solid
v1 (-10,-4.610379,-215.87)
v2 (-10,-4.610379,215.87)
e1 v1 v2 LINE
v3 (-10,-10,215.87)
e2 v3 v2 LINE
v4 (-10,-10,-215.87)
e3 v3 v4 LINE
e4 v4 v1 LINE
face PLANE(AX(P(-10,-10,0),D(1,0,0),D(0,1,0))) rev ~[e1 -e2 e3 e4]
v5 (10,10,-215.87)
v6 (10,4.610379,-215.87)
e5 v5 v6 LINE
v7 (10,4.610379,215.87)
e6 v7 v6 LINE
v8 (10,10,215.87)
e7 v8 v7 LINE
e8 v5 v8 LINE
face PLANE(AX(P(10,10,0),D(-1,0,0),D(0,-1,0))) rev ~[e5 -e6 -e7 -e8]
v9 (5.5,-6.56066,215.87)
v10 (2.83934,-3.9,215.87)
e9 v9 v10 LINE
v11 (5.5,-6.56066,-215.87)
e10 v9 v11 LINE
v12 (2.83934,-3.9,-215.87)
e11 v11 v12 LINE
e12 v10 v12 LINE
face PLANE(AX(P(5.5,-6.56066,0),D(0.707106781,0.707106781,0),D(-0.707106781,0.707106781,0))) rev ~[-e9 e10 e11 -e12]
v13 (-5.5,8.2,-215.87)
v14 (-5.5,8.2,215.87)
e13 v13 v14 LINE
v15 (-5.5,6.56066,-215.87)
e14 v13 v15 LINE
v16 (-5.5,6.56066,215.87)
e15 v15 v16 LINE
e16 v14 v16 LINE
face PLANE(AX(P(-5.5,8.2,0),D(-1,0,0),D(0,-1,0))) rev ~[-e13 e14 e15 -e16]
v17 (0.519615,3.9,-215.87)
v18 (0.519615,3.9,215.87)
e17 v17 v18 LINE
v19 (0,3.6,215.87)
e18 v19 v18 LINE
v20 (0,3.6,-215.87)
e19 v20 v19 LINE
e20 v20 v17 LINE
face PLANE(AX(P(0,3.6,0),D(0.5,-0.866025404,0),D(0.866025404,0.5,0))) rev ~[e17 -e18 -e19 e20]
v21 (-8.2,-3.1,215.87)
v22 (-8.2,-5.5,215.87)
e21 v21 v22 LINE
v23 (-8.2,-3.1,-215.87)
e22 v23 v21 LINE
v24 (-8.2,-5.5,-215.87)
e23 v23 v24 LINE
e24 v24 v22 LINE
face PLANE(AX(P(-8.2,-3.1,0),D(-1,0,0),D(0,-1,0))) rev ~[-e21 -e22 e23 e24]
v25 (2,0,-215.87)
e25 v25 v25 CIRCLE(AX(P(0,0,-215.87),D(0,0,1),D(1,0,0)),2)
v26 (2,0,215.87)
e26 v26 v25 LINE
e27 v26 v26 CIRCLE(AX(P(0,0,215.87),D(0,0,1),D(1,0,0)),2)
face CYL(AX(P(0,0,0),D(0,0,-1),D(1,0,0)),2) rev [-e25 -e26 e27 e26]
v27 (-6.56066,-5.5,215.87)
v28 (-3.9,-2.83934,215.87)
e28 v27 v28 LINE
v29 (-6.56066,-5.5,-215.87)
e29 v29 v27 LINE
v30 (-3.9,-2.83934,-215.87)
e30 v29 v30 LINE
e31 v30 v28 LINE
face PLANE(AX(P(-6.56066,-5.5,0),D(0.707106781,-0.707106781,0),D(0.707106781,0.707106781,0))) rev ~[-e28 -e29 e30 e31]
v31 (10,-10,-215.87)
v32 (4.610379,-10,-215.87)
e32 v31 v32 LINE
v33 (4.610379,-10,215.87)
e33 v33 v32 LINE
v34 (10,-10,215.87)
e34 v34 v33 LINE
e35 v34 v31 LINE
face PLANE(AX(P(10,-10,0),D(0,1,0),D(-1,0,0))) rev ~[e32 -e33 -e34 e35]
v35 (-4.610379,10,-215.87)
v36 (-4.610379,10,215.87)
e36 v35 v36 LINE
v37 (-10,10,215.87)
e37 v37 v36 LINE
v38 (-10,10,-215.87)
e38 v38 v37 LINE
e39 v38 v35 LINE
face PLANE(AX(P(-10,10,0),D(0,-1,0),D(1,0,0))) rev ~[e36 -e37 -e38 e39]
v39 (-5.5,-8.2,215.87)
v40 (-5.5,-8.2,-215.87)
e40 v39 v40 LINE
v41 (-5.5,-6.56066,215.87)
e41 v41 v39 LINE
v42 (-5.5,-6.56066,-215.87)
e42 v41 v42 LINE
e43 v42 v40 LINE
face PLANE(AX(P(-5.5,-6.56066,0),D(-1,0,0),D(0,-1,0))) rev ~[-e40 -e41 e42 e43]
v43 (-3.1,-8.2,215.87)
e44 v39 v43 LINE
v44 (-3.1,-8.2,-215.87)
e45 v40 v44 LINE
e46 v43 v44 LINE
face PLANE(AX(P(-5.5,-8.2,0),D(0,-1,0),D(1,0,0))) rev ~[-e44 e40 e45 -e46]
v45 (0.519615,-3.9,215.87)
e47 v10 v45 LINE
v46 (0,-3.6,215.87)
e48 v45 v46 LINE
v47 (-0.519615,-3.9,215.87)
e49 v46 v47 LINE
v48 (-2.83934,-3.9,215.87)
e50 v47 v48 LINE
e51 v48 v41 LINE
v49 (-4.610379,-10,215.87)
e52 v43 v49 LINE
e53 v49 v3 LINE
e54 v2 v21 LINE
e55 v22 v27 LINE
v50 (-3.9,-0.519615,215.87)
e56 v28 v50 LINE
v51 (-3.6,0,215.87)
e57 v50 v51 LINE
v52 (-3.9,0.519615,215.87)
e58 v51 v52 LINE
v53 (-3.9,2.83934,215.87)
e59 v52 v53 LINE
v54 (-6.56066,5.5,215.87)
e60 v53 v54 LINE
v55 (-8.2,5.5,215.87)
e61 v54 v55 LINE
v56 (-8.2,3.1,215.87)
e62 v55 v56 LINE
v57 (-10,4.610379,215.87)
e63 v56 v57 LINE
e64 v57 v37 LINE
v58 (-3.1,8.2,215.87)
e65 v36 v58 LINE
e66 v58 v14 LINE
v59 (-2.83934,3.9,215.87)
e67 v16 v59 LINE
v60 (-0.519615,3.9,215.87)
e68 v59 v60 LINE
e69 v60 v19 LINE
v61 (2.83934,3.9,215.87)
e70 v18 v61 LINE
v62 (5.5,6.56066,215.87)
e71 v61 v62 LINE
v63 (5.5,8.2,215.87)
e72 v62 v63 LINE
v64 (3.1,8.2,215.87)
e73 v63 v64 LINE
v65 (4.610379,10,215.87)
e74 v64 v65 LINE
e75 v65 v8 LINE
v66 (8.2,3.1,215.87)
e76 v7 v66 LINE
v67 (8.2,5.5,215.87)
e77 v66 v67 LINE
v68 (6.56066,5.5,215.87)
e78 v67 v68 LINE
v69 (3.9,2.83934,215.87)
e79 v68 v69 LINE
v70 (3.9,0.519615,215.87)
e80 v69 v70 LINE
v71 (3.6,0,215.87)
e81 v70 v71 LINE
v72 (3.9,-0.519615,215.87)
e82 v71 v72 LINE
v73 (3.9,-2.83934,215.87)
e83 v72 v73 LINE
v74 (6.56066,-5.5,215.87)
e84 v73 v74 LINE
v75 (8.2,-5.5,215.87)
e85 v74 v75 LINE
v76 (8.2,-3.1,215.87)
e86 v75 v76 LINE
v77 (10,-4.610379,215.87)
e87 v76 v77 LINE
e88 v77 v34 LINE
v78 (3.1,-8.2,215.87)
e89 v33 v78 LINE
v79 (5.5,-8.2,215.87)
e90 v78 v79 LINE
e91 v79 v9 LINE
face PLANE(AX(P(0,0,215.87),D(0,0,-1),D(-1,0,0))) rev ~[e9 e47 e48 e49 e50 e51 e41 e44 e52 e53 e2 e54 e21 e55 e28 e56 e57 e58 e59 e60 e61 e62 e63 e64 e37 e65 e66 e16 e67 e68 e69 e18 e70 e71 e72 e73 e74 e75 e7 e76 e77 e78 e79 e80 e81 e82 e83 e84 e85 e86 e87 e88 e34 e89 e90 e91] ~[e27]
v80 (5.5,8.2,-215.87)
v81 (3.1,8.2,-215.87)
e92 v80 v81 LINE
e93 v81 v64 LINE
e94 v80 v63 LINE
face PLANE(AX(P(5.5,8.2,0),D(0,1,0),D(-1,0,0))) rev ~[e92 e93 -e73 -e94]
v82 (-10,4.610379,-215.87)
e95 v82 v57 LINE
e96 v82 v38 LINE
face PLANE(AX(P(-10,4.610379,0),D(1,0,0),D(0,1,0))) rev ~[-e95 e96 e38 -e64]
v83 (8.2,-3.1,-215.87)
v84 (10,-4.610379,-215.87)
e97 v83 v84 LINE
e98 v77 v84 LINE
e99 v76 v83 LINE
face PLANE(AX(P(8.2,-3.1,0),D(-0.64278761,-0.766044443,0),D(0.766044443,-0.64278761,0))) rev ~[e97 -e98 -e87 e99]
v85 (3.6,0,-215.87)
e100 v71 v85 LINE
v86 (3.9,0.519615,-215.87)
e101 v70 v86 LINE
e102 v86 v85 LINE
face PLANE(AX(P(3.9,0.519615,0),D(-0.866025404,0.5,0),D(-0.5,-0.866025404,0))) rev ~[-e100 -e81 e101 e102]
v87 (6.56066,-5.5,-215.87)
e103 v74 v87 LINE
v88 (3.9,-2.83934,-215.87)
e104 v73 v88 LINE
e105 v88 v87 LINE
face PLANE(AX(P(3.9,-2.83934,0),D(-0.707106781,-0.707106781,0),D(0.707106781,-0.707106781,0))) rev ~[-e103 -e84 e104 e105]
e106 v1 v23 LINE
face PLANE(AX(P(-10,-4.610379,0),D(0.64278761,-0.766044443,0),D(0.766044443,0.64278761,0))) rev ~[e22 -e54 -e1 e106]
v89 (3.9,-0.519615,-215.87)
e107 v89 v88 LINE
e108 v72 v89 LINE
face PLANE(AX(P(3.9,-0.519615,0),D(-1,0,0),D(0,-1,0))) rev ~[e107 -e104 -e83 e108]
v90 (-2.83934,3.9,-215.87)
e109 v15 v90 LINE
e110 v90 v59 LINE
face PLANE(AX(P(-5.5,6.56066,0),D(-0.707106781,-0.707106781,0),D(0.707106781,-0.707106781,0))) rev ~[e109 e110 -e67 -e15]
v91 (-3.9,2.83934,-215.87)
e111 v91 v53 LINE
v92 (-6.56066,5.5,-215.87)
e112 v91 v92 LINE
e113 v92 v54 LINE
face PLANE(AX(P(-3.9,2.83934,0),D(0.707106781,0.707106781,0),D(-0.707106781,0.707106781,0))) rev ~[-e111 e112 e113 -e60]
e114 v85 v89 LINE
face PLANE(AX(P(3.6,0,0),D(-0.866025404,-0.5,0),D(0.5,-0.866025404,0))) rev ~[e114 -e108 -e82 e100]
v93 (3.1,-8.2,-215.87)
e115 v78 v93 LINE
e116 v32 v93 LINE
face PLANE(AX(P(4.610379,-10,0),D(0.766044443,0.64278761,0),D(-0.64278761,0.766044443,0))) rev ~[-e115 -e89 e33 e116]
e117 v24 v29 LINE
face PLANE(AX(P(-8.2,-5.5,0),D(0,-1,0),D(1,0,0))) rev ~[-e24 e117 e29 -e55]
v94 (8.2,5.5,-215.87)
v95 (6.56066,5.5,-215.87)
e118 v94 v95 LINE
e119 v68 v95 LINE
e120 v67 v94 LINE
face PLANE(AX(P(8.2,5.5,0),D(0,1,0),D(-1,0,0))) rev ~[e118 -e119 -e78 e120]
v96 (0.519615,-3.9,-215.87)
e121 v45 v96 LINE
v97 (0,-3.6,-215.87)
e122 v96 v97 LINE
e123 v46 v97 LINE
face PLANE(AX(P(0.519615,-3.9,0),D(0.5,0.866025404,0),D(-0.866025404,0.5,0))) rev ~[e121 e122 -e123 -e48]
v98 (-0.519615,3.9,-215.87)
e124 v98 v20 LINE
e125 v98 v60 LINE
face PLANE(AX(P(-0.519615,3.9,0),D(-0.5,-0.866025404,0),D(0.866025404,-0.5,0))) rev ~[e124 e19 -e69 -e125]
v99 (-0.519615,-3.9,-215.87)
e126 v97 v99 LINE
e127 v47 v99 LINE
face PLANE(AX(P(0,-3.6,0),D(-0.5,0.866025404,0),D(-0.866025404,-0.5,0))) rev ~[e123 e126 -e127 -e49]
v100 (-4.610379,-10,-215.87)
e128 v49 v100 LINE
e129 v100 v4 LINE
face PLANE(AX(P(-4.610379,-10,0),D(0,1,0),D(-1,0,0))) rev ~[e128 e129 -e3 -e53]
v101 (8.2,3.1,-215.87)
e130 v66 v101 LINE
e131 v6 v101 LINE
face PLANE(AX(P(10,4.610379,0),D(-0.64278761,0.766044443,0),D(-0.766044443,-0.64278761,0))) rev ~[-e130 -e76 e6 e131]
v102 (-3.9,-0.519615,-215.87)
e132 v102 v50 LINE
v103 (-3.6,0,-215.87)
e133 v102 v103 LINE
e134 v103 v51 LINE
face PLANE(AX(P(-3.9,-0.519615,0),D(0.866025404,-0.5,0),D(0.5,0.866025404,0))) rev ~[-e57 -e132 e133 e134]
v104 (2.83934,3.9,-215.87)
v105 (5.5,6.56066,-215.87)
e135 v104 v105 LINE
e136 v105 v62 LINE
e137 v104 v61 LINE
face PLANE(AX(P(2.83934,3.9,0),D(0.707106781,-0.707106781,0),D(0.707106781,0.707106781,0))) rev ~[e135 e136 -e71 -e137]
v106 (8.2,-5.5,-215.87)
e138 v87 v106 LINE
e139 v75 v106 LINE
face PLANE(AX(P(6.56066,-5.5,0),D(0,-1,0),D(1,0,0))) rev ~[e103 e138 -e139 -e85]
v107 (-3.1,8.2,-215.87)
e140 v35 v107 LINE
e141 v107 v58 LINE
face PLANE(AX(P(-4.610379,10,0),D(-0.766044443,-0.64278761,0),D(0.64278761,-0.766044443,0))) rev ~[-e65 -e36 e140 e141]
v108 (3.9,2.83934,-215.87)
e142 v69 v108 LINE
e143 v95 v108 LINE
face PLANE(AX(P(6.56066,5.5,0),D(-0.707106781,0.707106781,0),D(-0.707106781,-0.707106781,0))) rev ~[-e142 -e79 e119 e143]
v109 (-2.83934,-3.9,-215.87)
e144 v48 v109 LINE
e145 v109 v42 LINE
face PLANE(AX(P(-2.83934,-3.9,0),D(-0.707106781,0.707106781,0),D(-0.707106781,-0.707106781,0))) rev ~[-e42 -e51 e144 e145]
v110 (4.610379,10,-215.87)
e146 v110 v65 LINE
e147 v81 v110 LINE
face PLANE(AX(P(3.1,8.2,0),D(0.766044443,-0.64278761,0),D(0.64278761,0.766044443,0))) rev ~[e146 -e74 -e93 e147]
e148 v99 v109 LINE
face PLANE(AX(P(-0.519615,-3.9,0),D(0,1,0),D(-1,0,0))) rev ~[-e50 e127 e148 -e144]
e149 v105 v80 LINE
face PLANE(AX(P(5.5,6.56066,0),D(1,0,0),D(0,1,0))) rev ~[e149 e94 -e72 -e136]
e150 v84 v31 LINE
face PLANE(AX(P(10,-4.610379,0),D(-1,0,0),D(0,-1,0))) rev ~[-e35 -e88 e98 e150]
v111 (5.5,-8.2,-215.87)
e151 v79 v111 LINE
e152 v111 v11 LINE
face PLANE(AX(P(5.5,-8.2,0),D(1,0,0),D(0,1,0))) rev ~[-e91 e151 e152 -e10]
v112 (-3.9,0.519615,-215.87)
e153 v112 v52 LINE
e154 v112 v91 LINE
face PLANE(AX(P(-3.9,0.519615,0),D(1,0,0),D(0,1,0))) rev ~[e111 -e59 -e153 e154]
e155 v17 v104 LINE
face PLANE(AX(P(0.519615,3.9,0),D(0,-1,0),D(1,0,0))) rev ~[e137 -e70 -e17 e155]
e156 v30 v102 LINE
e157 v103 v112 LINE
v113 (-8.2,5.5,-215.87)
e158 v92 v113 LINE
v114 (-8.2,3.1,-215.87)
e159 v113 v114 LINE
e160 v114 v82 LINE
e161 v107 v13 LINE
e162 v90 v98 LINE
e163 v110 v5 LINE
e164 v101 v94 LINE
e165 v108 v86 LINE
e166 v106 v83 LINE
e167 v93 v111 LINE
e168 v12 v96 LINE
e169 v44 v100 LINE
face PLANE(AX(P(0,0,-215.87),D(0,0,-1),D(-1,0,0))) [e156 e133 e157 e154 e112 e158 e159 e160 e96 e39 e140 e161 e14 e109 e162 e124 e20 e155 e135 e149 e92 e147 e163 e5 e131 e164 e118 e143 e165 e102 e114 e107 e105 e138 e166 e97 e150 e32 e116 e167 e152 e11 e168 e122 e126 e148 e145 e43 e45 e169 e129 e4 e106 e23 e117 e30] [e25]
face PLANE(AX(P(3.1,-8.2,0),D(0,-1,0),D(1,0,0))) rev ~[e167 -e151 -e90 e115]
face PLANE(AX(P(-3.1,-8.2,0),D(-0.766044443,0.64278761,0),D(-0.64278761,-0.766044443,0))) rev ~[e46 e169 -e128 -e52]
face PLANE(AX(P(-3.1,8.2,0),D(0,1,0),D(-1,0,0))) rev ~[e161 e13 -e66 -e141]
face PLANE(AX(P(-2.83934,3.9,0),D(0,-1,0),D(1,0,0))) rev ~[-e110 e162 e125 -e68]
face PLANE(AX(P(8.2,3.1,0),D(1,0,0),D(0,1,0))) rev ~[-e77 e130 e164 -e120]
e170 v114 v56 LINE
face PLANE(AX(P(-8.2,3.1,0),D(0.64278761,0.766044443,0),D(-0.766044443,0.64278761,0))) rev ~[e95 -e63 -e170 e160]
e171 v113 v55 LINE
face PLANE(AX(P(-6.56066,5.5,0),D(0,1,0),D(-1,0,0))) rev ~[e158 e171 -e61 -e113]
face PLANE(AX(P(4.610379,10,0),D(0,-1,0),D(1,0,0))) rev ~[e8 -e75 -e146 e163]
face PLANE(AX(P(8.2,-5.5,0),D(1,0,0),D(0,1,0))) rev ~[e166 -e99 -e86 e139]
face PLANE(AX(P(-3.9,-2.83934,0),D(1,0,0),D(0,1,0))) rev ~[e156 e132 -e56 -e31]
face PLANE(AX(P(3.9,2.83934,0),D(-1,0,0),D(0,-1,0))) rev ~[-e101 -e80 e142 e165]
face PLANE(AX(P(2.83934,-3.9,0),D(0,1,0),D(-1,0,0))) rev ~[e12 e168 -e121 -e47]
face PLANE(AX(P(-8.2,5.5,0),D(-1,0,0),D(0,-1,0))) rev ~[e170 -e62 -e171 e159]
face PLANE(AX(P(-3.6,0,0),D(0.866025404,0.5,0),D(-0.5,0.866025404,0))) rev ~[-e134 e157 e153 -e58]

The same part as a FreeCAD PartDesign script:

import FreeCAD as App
import Part
import Sketcher

V = App.Vector
Q = App.Units.Quantity


def add_polygon(sketch, points):
    """Adds a closed chain of lines whose ends are joined by coincident constraints."""
    first, n = sketch.GeometryCount, len(points)
    for a, b in zip(points, points[1:] + points[:1]):
        sketch.addGeometry(Part.LineSegment(App.Vector(*a, 0), App.Vector(*b, 0)), False)
    for i in range(n):
        sketch.addConstraint(Sketcher.Constraint("Coincident", first + i, 2, first + (i + 1) % n, 1))

doc = App.newDocument("Part")
params = doc.addObject("Spreadsheet::Sheet", "Params")
for row, (alias, value) in enumerate([
    ("sketch1_diameter", "4 mm"),
    ("sketch1_width", "2.4 mm"),
    ("sketch1_length", "0.6 mm"),
    ("pad1_length", "431.74 mm"),
], start=1):
    params.set(f"A{row}", alias)
    params.set(f"B{row}", "=" + value)
    params.setAlias(f"B{row}", alias)

body = doc.addObject("PartDesign::Body", "Body")

# Sketch on XY plane
sketch1 = body.newObject("Sketcher::SketchObject", "Sketch")
sketch1.AttachmentSupport = (doc.getObject("XY_Plane"), [""])
sketch1.MapMode = "FlatFace"
add_polygon(sketch1, [(10, 4.6), (10, 10), (4.6, 10), (3.1, 8.2), (5.5, 8.2), (5.5, 6.6), (2.8, 3.9), (0.5, 3.9), (0, 3.6), (-0.5, 3.9), (-2.8, 3.9), (-5.5, 6.6), (-5.5, 8.2), (-3.1, 8.2), (-4.6, 10), (-10, 10), (-10, 4.6), (-8.2, 3.1), (-8.2, 5.5), (-6.6, 5.5), (-3.9, 2.8), (-3.9, 0.5), (-3.6, 0), (-3.9, -0.5), (-3.9, -2.8), (-6.6, -5.5), (-8.2, -5.5), (-8.2, -3.1), (-10, -4.6), (-10, -10), (-4.6, -10), (-3.1, -8.2), (-5.5, -8.2), (-5.5, -6.6), (-2.8, -3.9), (-0.5, -3.9), (0, -3.6), (0.5, -3.9), (2.8, -3.9), (5.5, -6.6), (5.5, -8.2), (3.1, -8.2), (4.6, -10), (10, -10), (10, -4.6), (8.2, -3.1), (8.2, -5.5), (6.6, -5.5), (3.9, -2.8), (3.9, -0.5), (3.6, 0), (3.9, 0.5), (3.9, 2.8), (6.6, 5.5), (8.2, 5.5), (8.2, 3.1)])  # lines 0-55
sketch1.addGeometry(Part.Circle(V(0, 0, 0), V(0, 0, 1), 2), False)  # 56
sketch1.addConstraint(Sketcher.Constraint("Vertical", 0))
sketch1.addConstraint(Sketcher.Constraint("Horizontal", 1))
sketch1.addConstraint(Sketcher.Constraint("Horizontal", 3))
sketch1.addConstraint(Sketcher.Constraint("Vertical", 4))
sketch1.addConstraint(Sketcher.Constraint("Horizontal", 6))
sketch1.addConstraint(Sketcher.Constraint("Horizontal", 9))
sketch1.addConstraint(Sketcher.Constraint("Vertical", 11))
sketch1.addConstraint(Sketcher.Constraint("Horizontal", 12))
sketch1.addConstraint(Sketcher.Constraint("Horizontal", 14))
sketch1.addConstraint(Sketcher.Constraint("Vertical", 15))
sketch1.addConstraint(Sketcher.Constraint("Vertical", 17))
sketch1.addConstraint(Sketcher.Constraint("Horizontal", 18))
sketch1.addConstraint(Sketcher.Constraint("Vertical", 20))
sketch1.addConstraint(Sketcher.Constraint("Vertical", 23))
sketch1.addConstraint(Sketcher.Constraint("Horizontal", 25))
sketch1.addConstraint(Sketcher.Constraint("Vertical", 26))
sketch1.addConstraint(Sketcher.Constraint("Vertical", 28))
sketch1.addConstraint(Sketcher.Constraint("Horizontal", 29))
sketch1.addConstraint(Sketcher.Constraint("Horizontal", 31))
sketch1.addConstraint(Sketcher.Constraint("Vertical", 32))
sketch1.addConstraint(Sketcher.Constraint("Horizontal", 34))
sketch1.addConstraint(Sketcher.Constraint("Horizontal", 37))
sketch1.addConstraint(Sketcher.Constraint("Vertical", 39))
sketch1.addConstraint(Sketcher.Constraint("Horizontal", 40))
sketch1.addConstraint(Sketcher.Constraint("Horizontal", 42))
sketch1.addConstraint(Sketcher.Constraint("Vertical", 43))
sketch1.addConstraint(Sketcher.Constraint("Vertical", 45))
sketch1.addConstraint(Sketcher.Constraint("Horizontal", 46))
sketch1.addConstraint(Sketcher.Constraint("Vertical", 48))
sketch1.addConstraint(Sketcher.Constraint("Vertical", 51))
sketch1.addConstraint(Sketcher.Constraint("Horizontal", 53))
sketch1.addConstraint(Sketcher.Constraint("Vertical", 54))
sketch1.addConstraint(Sketcher.Constraint("Coincident", 56, 3, -1, 1))
sketch1.addConstraint(Sketcher.Constraint("Symmetric", 0, 2, 28, 2, -1, 1))
sketch1.addConstraint(Sketcher.Constraint("Symmetric", 2, 2, 30, 2, -1, 1))
sketch1.addConstraint(Sketcher.Constraint("Symmetric", 4, 2, 32, 2, -1, 1))
sketch1.addConstraint(Sketcher.Constraint("Symmetric", 5, 2, 33, 2, -1, 1))
sketch1.addConstraint(Sketcher.Constraint("Symmetric", 7, 2, 35, 2, -1, 1))
sketch1.addConstraint(Sketcher.Constraint("Symmetric", 8, 2, 36, 2, -1, 1))
sketch1.addConstraint(Sketcher.Constraint("Symmetric", 10, 2, 38, 2, -1, 1))
sketch1.addConstraint(Sketcher.Constraint("Symmetric", 12, 2, 40, 2, -1, 1))
sketch1.addConstraint(Sketcher.Constraint("Symmetric", 13, 2, 41, 2, -1, 1))
sketch1.addConstraint(Sketcher.Constraint("Symmetric", 15, 2, 43, 2, -1, 1))
sketch1.addConstraint(Sketcher.Constraint("Symmetric", 16, 2, 44, 2, -1, 1))
sketch1.addConstraint(Sketcher.Constraint("Symmetric", 18, 2, 46, 2, -1, 1))
sketch1.addConstraint(Sketcher.Constraint("Symmetric", 19, 2, 47, 2, -1, 1))
sketch1.addConstraint(Sketcher.Constraint("Symmetric", 21, 2, 49, 2, -1, 1))
sketch1.addConstraint(Sketcher.Constraint("Symmetric", 22, 2, 50, 2, -1, 1))
sketch1.addConstraint(Sketcher.Constraint("Symmetric", 24, 2, 52, 2, -1, 1))
sketch1.addConstraint(Sketcher.Constraint("Symmetric", 26, 2, 54, 2, -1, 1))
sketch1.addConstraint(Sketcher.Constraint("Symmetric", 6, 2, 8, 2, -2))
sketch1.addConstraint(Sketcher.Constraint("Symmetric", 4, 2, 10, 2, -2))
sketch1.addConstraint(Sketcher.Constraint("Symmetric", 2, 2, 12, 2, -2))
sketch1.addConstraint(Sketcher.Constraint("Symmetric", 1, 2, 13, 2, -2))
sketch1.addConstraint(Sketcher.Constraint("Symmetric", 27, 2, 43, 2, -2))
sketch1.addConstraint(Sketcher.Constraint("Symmetric", 26, 2, 44, 2, -2))
sketch1.addConstraint(Sketcher.Constraint("Symmetric", 24, 2, 46, 2, -2))
sketch1.addConstraint(Sketcher.Constraint("Symmetric", 23, 2, 47, 2, -2))
sketch1.addConstraint(Sketcher.Constraint("PointOnObject", 7, 2, -2))
sketch1.addConstraint(Sketcher.Constraint("PointOnObject", 21, 2, -1))
sketch1.addConstraint(Sketcher.Constraint("Perpendicular", 5, 10))
sketch1.addConstraint(Sketcher.Constraint("Perpendicular", 2, 16))
sketch1.addConstraint(Sketcher.Constraint("Parallel", 10, 19))
sketch1.addConstraint(Sketcher.Constraint("Perpendicular", 7, 21))
sketch1.addConstraint(Sketcher.Constraint("Perpendicular", 8, 22))
sketch1.addConstraint(Sketcher.Constraint("Perpendicular", 19, 24))
sketch1.addConstraint(Sketcher.Constraint("Perpendicular", 16, 30))
sketch1.addConstraint(Sketcher.Constraint("Perpendicular", 21, 35))
sketch1.addConstraint(Sketcher.Constraint("Perpendicular", 33, 38))
sketch1.addConstraint(Sketcher.Constraint("Perpendicular", 35, 49))
sketch1.addConstraint(Sketcher.Constraint("Perpendicular", 47, 52))
sketch1.addConstraint(Sketcher.Constraint("Perpendicular", 41, 55))
sketch1.addConstraint(Sketcher.Constraint("Equal", 42, 0))
sketch1.addConstraint(Sketcher.Constraint("Equal", 53, 4))
sketch1.addConstraint(Sketcher.Constraint("Equal", 40, 17))
sketch1.addConstraint(Sketcher.Constraint("Equal", 37, 20))
sketch1.addConstraint(Sketcher.Constraint("Equal", 13, 16))
sketch1.addConstraint(Sketcher.Constraint("Equal", 10, 19))
sketch1.addConstraint(Sketcher.Constraint("Equal", 8, 21))
sketch1.addConstraint(Sketcher.Constraint("Diameter", 56, 4.0))
sketch1.addConstraint(Sketcher.Constraint("Angle", 2, Q("-130 deg")))
sketch1.addConstraint(Sketcher.Constraint("Angle", 7, Q("-150 deg")))
sketch1.addConstraint(Sketcher.Constraint("DistanceX", 3, 1, 3, 2, 2.4))
sketch1.addConstraint(Sketcher.Constraint("DistanceX", -1, 1, 0, 2, 10.0))
sketch1.addConstraint(Sketcher.Constraint("Distance", 7, 0.6))
sketch1.addConstraint(Sketcher.Constraint("DistanceX", -1, 1, 2, 2, 3.1))
sketch1.addConstraint(Sketcher.Constraint("DistanceY", -1, 1, 2, 2, 8.2))
sketch1.addConstraint(Sketcher.Constraint("DistanceY", -1, 1, 5, 2, 3.9))
sketch1.addConstraint(Sketcher.Constraint("DistanceX", 18, 1, 18, 2, 1.63934))
sketch1.setExpression("Constraints[135]", "Params.sketch1_diameter")
sketch1.setExpression("Constraints[138]", "Params.sketch1_width")
sketch1.setExpression("Constraints[140]", "Params.sketch1_length")
pad1 = body.newObject("PartDesign::Pad", "Pad")
pad1.Profile = sketch1
pad1.setExpression("Length", "Params.pad1_length")
pad1.Midplane = True

doc.recompute()
